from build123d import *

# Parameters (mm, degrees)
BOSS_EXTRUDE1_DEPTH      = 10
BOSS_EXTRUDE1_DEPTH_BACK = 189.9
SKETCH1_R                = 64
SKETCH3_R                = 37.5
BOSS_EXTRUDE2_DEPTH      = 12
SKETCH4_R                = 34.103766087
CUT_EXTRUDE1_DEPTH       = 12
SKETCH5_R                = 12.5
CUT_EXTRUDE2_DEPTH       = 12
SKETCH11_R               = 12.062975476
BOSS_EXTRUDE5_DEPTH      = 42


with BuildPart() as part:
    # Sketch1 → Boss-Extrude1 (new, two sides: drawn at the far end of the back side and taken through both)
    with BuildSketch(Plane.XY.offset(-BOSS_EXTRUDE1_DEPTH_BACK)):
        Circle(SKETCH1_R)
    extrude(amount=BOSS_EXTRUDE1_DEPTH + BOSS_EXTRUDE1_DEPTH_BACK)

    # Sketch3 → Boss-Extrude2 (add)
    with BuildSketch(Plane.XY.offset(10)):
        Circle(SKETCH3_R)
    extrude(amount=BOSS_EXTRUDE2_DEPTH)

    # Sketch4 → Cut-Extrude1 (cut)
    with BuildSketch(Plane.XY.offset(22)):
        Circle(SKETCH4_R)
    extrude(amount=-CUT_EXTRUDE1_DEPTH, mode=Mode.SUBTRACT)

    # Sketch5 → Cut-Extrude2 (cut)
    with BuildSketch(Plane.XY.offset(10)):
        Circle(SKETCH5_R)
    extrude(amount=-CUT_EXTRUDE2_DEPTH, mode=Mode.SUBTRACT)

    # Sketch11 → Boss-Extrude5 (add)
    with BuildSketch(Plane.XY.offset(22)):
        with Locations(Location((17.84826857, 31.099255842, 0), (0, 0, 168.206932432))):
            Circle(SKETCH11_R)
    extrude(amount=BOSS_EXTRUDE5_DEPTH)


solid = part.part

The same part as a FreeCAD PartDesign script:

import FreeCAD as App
import Part
import Sketcher

doc = App.newDocument("Part")
body = doc.addObject("PartDesign::Body", "Body")

sketch1 = body.newObject("Sketcher::SketchObject", "Sketch")
sketch1.AttachmentSupport = (doc.getObject("XY_Plane"), [""])
sketch1.MapMode = "FlatFace"
sketch1.addGeometry(Part.Circle(App.Vector(0, 0, 0), App.Vector(0, 0, 1), 64), False)
sketch1.addConstraint(Sketcher.Constraint("Coincident", 0, 3, -1, 1))
sketch1.addConstraint(Sketcher.Constraint("Diameter", 0, 128.0))
pad1 = body.newObject("PartDesign::Pad", "Pad")
pad1.Profile = sketch1
pad1.Type = "TwoLengths"
pad1.Length = 10
pad1.Length2 = 189.9

sketch2 = body.newObject("Sketcher::SketchObject", "Sketch001")
sketch2.AttachmentSupport = (doc.getObject("XY_Plane"), [""])
sketch2.MapMode = "FlatFace"
sketch2.AttachmentOffset = App.Placement(App.Vector(0, 0, 10), App.Rotation())
sketch2.addGeometry(Part.Circle(App.Vector(0, 0, 0), App.Vector(0, 0, 1), 38), False)
sketch2.addConstraint(Sketcher.Constraint("Coincident", 0, 3, -1, 1))
sketch2.addConstraint(Sketcher.Constraint("Diameter", 0, 75.0))
pad2 = body.newObject("PartDesign::Pad", "Pad001")
pad2.Profile = sketch2
pad2.Length = 12

sketch3 = body.newObject("Sketcher::SketchObject", "Sketch002")
sketch3.AttachmentSupport = (doc.getObject("XY_Plane"), [""])
sketch3.MapMode = "FlatFace"
sketch3.AttachmentOffset = App.Placement(App.Vector(0, 0, 22), App.Rotation())
sketch3.addGeometry(Part.Circle(App.Vector(0, 0, 0), App.Vector(0, 0, 1), 34), False)
sketch3.addConstraint(Sketcher.Constraint("Coincident", 0, 3, -1, 1))
sketch3.addConstraint(Sketcher.Constraint("Diameter", 0, 68.207532))
pocket1 = body.newObject("PartDesign::Pocket", "Pocket")
pocket1.Profile = sketch3
pocket1.Length = 12

sketch4 = body.newObject("Sketcher::SketchObject", "Sketch003")
sketch4.AttachmentSupport = (doc.getObject("XY_Plane"), [""])
sketch4.MapMode = "FlatFace"
sketch4.AttachmentOffset = App.Placement(App.Vector(0, 0, 10), App.Rotation())
sketch4.addGeometry(Part.Circle(App.Vector(0, 0, 0), App.Vector(0, 0, 1), 12), False)
sketch4.addConstraint(Sketcher.Constraint("Coincident", 0, 3, -1, 1))
sketch4.addConstraint(Sketcher.Constraint("Diameter", 0, 25.0))
pocket2 = body.newObject("PartDesign::Pocket", "Pocket001")
pocket2.Profile = sketch4
pocket2.Length = 12

sketch5 = body.newObject("Sketcher::SketchObject", "Sketch004")
sketch5.AttachmentSupport = (doc.getObject("XY_Plane"), [""])
sketch5.MapMode = "FlatFace"
sketch5.AttachmentOffset = App.Placement(App.Vector(0, 0, 22), App.Rotation())
sketch5.addGeometry(Part.Circle(App.Vector(18, 31, 0), App.Vector(0, 0, 1), 12), False)
sketch5.addConstraint(Sketcher.Constraint("Diameter", 0, 24.125951))
sketch5.addConstraint(Sketcher.Constraint("DistanceX", -1, 1, 0, 3, 17.848269))
sketch5.addConstraint(Sketcher.Constraint("DistanceY", -1, 1, 0, 3, 31.099256))
pad3 = body.newObject("PartDesign::Pad", "Pad002")
pad3.Profile = sketch5
pad3.Length = 42

doc.recompute()
